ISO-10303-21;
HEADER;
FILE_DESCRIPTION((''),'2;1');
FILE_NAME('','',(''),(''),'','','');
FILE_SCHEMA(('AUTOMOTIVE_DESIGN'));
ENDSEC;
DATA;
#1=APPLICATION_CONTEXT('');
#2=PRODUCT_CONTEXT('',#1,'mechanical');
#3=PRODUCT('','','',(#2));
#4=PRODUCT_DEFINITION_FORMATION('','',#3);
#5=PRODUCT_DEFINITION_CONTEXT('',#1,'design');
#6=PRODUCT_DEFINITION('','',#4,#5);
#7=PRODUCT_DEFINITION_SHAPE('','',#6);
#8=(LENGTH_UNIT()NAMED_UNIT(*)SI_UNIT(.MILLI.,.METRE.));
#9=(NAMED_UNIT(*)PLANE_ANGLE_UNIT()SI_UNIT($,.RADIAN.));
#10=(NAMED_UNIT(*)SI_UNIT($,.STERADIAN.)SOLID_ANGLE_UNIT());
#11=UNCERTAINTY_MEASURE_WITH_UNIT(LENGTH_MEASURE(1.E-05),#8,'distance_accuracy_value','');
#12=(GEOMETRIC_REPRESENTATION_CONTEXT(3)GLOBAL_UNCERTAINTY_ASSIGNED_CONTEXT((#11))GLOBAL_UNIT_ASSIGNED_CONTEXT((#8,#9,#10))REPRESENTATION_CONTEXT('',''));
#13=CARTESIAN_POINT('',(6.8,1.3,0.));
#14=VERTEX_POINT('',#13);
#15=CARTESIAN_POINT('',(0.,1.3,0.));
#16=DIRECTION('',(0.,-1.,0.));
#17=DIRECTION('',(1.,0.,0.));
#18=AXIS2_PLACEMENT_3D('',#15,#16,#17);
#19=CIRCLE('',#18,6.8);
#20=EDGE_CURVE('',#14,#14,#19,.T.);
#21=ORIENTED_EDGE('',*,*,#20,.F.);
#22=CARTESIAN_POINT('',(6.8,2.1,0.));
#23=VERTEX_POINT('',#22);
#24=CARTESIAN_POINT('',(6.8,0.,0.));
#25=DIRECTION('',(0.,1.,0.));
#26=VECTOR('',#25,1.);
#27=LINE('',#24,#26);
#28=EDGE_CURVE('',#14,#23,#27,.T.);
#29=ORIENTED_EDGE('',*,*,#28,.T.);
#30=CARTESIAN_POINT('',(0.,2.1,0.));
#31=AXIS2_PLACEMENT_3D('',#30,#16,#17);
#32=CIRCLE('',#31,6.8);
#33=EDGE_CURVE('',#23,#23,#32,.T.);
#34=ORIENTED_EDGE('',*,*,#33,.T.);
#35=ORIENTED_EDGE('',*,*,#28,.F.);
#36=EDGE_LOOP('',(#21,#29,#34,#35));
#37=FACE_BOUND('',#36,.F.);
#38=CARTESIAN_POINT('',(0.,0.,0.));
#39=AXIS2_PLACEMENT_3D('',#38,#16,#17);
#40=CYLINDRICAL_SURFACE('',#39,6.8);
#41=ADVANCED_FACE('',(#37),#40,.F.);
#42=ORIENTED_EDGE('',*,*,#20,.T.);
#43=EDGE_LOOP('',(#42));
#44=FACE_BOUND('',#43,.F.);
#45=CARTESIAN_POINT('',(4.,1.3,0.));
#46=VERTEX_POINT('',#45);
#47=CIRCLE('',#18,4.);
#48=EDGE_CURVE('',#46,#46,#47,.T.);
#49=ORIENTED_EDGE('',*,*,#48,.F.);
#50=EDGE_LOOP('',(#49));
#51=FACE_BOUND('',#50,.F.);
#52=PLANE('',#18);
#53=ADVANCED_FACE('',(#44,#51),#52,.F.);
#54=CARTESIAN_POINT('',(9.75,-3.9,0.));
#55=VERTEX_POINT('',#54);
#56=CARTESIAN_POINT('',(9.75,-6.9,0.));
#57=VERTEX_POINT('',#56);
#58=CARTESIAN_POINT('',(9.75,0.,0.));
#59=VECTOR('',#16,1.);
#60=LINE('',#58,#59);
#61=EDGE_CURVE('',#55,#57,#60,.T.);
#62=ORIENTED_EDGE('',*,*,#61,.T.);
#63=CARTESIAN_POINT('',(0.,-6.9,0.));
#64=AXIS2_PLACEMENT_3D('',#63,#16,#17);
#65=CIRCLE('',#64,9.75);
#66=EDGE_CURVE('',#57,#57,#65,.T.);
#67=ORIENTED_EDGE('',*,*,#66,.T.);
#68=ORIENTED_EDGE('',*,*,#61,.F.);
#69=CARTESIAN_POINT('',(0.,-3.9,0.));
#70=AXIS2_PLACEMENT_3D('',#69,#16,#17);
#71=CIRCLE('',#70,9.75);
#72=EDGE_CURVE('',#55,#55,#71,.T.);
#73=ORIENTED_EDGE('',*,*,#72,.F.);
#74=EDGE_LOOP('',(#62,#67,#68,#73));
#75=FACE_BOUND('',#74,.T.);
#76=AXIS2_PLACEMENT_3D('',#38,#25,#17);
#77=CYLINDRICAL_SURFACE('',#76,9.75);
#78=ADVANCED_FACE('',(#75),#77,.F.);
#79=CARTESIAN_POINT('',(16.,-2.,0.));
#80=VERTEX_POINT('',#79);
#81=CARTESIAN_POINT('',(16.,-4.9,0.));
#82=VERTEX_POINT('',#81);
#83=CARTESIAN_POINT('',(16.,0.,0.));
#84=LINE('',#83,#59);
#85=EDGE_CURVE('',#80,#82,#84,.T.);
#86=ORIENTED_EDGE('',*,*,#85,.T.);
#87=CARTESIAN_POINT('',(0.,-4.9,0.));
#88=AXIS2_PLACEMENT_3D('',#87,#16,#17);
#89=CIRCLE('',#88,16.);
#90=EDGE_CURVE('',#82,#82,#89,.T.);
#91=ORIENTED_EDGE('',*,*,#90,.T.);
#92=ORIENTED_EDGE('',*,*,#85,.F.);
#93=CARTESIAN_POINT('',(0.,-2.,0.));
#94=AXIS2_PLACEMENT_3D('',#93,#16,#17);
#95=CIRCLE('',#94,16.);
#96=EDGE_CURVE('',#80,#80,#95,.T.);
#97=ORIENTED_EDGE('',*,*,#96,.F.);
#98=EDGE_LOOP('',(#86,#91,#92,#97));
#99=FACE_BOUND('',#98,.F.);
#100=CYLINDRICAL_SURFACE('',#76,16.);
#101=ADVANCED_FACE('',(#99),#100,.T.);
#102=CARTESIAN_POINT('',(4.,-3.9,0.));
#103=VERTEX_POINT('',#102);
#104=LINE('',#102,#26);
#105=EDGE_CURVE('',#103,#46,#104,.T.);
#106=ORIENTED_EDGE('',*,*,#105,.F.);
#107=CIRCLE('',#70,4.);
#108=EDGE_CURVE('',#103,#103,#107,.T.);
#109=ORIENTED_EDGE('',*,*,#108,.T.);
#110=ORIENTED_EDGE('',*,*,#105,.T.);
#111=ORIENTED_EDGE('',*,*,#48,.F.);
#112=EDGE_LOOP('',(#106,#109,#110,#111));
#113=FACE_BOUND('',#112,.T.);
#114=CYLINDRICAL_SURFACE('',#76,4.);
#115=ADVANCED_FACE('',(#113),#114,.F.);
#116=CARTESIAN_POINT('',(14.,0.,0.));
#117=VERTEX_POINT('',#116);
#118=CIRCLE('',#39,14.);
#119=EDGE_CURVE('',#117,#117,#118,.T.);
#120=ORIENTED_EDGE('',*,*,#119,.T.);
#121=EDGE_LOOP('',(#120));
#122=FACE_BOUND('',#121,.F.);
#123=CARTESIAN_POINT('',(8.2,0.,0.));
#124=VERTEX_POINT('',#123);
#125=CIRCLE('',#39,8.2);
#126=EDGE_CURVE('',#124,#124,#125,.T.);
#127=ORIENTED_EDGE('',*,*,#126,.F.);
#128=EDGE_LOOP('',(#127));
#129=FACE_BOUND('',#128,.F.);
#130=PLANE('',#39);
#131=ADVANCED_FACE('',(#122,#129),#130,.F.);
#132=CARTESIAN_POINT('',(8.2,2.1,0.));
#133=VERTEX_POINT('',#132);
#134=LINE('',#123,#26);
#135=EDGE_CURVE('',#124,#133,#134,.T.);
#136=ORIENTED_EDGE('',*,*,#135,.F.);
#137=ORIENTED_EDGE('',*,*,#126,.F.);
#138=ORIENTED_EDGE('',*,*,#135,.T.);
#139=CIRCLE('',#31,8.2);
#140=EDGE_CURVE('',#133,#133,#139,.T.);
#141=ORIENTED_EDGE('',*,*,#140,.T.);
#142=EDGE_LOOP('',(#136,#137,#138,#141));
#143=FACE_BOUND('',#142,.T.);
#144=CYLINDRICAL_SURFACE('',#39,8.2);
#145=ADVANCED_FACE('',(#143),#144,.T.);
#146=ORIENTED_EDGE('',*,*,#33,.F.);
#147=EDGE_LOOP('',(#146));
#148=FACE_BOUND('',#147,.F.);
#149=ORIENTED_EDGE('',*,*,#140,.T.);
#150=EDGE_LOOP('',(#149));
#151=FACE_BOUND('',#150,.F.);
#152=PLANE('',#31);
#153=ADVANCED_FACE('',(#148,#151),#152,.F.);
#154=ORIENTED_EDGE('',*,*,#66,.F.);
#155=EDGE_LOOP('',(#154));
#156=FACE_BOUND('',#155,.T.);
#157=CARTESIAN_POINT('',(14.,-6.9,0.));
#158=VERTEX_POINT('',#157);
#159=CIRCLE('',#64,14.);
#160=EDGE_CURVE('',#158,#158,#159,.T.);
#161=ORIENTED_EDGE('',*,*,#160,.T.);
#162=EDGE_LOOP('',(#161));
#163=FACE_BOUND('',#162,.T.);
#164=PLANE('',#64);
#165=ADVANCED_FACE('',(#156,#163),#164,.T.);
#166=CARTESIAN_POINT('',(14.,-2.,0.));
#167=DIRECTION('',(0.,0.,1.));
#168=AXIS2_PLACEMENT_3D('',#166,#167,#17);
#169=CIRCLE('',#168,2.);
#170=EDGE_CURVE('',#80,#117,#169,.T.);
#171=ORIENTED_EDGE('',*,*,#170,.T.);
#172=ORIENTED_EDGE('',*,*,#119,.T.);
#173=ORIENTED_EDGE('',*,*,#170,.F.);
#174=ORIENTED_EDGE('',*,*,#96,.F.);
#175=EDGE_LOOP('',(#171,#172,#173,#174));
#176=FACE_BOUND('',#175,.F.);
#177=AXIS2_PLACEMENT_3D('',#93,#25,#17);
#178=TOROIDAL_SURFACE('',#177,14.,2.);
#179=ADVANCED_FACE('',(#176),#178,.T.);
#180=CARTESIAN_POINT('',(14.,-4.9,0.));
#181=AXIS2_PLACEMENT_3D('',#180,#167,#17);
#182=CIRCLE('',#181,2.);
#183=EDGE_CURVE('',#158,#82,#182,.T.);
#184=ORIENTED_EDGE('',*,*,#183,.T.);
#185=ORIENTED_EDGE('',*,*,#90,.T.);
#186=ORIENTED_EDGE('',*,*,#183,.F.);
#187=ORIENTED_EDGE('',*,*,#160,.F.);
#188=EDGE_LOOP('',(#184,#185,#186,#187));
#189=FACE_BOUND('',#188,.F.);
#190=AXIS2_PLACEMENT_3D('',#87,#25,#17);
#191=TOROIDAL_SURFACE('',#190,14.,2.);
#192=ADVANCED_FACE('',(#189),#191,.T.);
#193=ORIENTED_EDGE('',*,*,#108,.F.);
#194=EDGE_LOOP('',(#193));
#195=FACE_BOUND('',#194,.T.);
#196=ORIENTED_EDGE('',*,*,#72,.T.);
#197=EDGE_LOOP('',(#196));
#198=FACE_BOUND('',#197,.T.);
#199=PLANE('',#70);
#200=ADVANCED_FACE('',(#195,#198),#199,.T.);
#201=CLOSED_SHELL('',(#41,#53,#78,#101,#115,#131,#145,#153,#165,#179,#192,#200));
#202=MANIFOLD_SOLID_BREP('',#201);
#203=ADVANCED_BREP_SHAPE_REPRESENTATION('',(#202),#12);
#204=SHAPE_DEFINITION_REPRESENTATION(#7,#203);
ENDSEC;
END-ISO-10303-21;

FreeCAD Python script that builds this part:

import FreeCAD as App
import Part
import Sketcher


def edges_at(feature, points):
    """Names of the edges that pass closest to the given points."""
    edges = feature.Shape.Edges
    near = lambda p: min(range(len(edges)), key=lambda i: edges[i].distToShape(Part.Vertex(*p))[0])
    return sorted({f"Edge{near(p) + 1}" for p in points})

doc = App.newDocument("Part")
body = doc.addObject("PartDesign::Body", "Body")

# Sketch on XZ plane
sketch1 = body.newObject("Sketcher::SketchObject", "Sketch")
sketch1.AttachmentSupport = (doc.getObject("XZ_Plane"), [""])
sketch1.MapMode = "FlatFace"
sketch1.addGeometry(Part.Circle(App.Vector(0, 0, 0), App.Vector(0, 0, 1), 9.8), False)
sketch1.addGeometry(Part.Circle(App.Vector(0, 0, 0), App.Vector(0, 0, 1), 4), False)
sketch1.addConstraint(Sketcher.Constraint("Coincident", 0, 3, -1, 1))
sketch1.addConstraint(Sketcher.Constraint("Coincident", 1, 3, -1, 1))
sketch1.addConstraint(Sketcher.Constraint("Diameter", 1, 8.0))
sketch1.addConstraint(Sketcher.Constraint("Diameter", 0, 19.5))
pad1 = body.newObject("PartDesign::Pad", "Pad")
pad1.Profile = sketch1
pad1.Length = 3.9

# Sketch on XZ plane
sketch2 = body.newObject("Sketcher::SketchObject", "Sketch001")
sketch2.AttachmentSupport = (doc.getObject("XZ_Plane"), [""])
sketch2.MapMode = "FlatFace"
sketch2.addGeometry(Part.Circle(App.Vector(0, 0, 0), App.Vector(0, 0, 1), 16), False)
sketch2.addGeometry(Part.Circle(App.Vector(0, 0, 0), App.Vector(0, 0, 1), 10), False)
sketch2.addConstraint(Sketcher.Constraint("Coincident", 0, 3, -1, 1))
sketch2.addConstraint(Sketcher.Constraint("Coincident", 1, 3, -1, 1))
sketch2.addConstraint(Sketcher.Constraint("Diameter", 0, 32.0))
sketch2.addConstraint(Sketcher.Constraint("Diameter", 1, 19.5))
pad2 = body.newObject("PartDesign::Pad", "Pad001")
pad2.Profile = sketch2
pad2.Length = 6.9

# Sketch on XZ plane
sketch3 = body.newObject("Sketcher::SketchObject", "Sketch002")
sketch3.AttachmentSupport = (doc.getObject("XZ_Plane"), [""])
sketch3.MapMode = "FlatFace"
sketch3.addGeometry(Part.Circle(App.Vector(0, 0, 0), App.Vector(0, 0, 1), 8), False)
sketch3.addGeometry(Part.Circle(App.Vector(0, 0, 0), App.Vector(0, 0, 1), 7), False)
sketch3.addConstraint(Sketcher.Constraint("Coincident", 0, 3, -1, 1))
sketch3.addConstraint(Sketcher.Constraint("Coincident", 1, 3, -1, 1))
sketch3.addConstraint(Sketcher.Constraint("Diameter", 0, 16.4))
sketch3.addConstraint(Sketcher.Constraint("Diameter", 1, 13.6))
pad3 = body.newObject("PartDesign::Pad", "Pad002")
pad3.Profile = sketch3
pad3.Length = 2.1
pad3.Reversed = True

# Sketch on XZ plane
sketch4 = body.newObject("Sketcher::SketchObject", "Sketch003")
sketch4.AttachmentSupport = (doc.getObject("XZ_Plane"), [""])
sketch4.MapMode = "FlatFace"
sketch4.addGeometry(Part.Circle(App.Vector(0, 0, 0), App.Vector(0, 0, 1), 6.8), False)
sketch4.addGeometry(Part.Circle(App.Vector(0, 0, 0), App.Vector(0, 0, 1), 4), False)
sketch4.addConstraint(Sketcher.Constraint("Coincident", 0, 3, -1, 1))
sketch4.addConstraint(Sketcher.Constraint("Coincident", 1, 3, -1, 1))
sketch4.addConstraint(Sketcher.Constraint("Diameter", 1, 8.0))
sketch4.addConstraint(Sketcher.Constraint("Diameter", 0, 13.6))
pad4 = body.newObject("PartDesign::Pad", "Pad003")
pad4.Profile = sketch4
pad4.Length = 1.3
pad4.Reversed = True
doc.recompute()

fillet = body.newObject("PartDesign::Fillet", "Fillet")
fillet.Base = (pad4, edges_at(pad4, [(-16, -6.9, 0), (-16, 0, 0)]))
fillet.Radius = 2

doc.recompute()
